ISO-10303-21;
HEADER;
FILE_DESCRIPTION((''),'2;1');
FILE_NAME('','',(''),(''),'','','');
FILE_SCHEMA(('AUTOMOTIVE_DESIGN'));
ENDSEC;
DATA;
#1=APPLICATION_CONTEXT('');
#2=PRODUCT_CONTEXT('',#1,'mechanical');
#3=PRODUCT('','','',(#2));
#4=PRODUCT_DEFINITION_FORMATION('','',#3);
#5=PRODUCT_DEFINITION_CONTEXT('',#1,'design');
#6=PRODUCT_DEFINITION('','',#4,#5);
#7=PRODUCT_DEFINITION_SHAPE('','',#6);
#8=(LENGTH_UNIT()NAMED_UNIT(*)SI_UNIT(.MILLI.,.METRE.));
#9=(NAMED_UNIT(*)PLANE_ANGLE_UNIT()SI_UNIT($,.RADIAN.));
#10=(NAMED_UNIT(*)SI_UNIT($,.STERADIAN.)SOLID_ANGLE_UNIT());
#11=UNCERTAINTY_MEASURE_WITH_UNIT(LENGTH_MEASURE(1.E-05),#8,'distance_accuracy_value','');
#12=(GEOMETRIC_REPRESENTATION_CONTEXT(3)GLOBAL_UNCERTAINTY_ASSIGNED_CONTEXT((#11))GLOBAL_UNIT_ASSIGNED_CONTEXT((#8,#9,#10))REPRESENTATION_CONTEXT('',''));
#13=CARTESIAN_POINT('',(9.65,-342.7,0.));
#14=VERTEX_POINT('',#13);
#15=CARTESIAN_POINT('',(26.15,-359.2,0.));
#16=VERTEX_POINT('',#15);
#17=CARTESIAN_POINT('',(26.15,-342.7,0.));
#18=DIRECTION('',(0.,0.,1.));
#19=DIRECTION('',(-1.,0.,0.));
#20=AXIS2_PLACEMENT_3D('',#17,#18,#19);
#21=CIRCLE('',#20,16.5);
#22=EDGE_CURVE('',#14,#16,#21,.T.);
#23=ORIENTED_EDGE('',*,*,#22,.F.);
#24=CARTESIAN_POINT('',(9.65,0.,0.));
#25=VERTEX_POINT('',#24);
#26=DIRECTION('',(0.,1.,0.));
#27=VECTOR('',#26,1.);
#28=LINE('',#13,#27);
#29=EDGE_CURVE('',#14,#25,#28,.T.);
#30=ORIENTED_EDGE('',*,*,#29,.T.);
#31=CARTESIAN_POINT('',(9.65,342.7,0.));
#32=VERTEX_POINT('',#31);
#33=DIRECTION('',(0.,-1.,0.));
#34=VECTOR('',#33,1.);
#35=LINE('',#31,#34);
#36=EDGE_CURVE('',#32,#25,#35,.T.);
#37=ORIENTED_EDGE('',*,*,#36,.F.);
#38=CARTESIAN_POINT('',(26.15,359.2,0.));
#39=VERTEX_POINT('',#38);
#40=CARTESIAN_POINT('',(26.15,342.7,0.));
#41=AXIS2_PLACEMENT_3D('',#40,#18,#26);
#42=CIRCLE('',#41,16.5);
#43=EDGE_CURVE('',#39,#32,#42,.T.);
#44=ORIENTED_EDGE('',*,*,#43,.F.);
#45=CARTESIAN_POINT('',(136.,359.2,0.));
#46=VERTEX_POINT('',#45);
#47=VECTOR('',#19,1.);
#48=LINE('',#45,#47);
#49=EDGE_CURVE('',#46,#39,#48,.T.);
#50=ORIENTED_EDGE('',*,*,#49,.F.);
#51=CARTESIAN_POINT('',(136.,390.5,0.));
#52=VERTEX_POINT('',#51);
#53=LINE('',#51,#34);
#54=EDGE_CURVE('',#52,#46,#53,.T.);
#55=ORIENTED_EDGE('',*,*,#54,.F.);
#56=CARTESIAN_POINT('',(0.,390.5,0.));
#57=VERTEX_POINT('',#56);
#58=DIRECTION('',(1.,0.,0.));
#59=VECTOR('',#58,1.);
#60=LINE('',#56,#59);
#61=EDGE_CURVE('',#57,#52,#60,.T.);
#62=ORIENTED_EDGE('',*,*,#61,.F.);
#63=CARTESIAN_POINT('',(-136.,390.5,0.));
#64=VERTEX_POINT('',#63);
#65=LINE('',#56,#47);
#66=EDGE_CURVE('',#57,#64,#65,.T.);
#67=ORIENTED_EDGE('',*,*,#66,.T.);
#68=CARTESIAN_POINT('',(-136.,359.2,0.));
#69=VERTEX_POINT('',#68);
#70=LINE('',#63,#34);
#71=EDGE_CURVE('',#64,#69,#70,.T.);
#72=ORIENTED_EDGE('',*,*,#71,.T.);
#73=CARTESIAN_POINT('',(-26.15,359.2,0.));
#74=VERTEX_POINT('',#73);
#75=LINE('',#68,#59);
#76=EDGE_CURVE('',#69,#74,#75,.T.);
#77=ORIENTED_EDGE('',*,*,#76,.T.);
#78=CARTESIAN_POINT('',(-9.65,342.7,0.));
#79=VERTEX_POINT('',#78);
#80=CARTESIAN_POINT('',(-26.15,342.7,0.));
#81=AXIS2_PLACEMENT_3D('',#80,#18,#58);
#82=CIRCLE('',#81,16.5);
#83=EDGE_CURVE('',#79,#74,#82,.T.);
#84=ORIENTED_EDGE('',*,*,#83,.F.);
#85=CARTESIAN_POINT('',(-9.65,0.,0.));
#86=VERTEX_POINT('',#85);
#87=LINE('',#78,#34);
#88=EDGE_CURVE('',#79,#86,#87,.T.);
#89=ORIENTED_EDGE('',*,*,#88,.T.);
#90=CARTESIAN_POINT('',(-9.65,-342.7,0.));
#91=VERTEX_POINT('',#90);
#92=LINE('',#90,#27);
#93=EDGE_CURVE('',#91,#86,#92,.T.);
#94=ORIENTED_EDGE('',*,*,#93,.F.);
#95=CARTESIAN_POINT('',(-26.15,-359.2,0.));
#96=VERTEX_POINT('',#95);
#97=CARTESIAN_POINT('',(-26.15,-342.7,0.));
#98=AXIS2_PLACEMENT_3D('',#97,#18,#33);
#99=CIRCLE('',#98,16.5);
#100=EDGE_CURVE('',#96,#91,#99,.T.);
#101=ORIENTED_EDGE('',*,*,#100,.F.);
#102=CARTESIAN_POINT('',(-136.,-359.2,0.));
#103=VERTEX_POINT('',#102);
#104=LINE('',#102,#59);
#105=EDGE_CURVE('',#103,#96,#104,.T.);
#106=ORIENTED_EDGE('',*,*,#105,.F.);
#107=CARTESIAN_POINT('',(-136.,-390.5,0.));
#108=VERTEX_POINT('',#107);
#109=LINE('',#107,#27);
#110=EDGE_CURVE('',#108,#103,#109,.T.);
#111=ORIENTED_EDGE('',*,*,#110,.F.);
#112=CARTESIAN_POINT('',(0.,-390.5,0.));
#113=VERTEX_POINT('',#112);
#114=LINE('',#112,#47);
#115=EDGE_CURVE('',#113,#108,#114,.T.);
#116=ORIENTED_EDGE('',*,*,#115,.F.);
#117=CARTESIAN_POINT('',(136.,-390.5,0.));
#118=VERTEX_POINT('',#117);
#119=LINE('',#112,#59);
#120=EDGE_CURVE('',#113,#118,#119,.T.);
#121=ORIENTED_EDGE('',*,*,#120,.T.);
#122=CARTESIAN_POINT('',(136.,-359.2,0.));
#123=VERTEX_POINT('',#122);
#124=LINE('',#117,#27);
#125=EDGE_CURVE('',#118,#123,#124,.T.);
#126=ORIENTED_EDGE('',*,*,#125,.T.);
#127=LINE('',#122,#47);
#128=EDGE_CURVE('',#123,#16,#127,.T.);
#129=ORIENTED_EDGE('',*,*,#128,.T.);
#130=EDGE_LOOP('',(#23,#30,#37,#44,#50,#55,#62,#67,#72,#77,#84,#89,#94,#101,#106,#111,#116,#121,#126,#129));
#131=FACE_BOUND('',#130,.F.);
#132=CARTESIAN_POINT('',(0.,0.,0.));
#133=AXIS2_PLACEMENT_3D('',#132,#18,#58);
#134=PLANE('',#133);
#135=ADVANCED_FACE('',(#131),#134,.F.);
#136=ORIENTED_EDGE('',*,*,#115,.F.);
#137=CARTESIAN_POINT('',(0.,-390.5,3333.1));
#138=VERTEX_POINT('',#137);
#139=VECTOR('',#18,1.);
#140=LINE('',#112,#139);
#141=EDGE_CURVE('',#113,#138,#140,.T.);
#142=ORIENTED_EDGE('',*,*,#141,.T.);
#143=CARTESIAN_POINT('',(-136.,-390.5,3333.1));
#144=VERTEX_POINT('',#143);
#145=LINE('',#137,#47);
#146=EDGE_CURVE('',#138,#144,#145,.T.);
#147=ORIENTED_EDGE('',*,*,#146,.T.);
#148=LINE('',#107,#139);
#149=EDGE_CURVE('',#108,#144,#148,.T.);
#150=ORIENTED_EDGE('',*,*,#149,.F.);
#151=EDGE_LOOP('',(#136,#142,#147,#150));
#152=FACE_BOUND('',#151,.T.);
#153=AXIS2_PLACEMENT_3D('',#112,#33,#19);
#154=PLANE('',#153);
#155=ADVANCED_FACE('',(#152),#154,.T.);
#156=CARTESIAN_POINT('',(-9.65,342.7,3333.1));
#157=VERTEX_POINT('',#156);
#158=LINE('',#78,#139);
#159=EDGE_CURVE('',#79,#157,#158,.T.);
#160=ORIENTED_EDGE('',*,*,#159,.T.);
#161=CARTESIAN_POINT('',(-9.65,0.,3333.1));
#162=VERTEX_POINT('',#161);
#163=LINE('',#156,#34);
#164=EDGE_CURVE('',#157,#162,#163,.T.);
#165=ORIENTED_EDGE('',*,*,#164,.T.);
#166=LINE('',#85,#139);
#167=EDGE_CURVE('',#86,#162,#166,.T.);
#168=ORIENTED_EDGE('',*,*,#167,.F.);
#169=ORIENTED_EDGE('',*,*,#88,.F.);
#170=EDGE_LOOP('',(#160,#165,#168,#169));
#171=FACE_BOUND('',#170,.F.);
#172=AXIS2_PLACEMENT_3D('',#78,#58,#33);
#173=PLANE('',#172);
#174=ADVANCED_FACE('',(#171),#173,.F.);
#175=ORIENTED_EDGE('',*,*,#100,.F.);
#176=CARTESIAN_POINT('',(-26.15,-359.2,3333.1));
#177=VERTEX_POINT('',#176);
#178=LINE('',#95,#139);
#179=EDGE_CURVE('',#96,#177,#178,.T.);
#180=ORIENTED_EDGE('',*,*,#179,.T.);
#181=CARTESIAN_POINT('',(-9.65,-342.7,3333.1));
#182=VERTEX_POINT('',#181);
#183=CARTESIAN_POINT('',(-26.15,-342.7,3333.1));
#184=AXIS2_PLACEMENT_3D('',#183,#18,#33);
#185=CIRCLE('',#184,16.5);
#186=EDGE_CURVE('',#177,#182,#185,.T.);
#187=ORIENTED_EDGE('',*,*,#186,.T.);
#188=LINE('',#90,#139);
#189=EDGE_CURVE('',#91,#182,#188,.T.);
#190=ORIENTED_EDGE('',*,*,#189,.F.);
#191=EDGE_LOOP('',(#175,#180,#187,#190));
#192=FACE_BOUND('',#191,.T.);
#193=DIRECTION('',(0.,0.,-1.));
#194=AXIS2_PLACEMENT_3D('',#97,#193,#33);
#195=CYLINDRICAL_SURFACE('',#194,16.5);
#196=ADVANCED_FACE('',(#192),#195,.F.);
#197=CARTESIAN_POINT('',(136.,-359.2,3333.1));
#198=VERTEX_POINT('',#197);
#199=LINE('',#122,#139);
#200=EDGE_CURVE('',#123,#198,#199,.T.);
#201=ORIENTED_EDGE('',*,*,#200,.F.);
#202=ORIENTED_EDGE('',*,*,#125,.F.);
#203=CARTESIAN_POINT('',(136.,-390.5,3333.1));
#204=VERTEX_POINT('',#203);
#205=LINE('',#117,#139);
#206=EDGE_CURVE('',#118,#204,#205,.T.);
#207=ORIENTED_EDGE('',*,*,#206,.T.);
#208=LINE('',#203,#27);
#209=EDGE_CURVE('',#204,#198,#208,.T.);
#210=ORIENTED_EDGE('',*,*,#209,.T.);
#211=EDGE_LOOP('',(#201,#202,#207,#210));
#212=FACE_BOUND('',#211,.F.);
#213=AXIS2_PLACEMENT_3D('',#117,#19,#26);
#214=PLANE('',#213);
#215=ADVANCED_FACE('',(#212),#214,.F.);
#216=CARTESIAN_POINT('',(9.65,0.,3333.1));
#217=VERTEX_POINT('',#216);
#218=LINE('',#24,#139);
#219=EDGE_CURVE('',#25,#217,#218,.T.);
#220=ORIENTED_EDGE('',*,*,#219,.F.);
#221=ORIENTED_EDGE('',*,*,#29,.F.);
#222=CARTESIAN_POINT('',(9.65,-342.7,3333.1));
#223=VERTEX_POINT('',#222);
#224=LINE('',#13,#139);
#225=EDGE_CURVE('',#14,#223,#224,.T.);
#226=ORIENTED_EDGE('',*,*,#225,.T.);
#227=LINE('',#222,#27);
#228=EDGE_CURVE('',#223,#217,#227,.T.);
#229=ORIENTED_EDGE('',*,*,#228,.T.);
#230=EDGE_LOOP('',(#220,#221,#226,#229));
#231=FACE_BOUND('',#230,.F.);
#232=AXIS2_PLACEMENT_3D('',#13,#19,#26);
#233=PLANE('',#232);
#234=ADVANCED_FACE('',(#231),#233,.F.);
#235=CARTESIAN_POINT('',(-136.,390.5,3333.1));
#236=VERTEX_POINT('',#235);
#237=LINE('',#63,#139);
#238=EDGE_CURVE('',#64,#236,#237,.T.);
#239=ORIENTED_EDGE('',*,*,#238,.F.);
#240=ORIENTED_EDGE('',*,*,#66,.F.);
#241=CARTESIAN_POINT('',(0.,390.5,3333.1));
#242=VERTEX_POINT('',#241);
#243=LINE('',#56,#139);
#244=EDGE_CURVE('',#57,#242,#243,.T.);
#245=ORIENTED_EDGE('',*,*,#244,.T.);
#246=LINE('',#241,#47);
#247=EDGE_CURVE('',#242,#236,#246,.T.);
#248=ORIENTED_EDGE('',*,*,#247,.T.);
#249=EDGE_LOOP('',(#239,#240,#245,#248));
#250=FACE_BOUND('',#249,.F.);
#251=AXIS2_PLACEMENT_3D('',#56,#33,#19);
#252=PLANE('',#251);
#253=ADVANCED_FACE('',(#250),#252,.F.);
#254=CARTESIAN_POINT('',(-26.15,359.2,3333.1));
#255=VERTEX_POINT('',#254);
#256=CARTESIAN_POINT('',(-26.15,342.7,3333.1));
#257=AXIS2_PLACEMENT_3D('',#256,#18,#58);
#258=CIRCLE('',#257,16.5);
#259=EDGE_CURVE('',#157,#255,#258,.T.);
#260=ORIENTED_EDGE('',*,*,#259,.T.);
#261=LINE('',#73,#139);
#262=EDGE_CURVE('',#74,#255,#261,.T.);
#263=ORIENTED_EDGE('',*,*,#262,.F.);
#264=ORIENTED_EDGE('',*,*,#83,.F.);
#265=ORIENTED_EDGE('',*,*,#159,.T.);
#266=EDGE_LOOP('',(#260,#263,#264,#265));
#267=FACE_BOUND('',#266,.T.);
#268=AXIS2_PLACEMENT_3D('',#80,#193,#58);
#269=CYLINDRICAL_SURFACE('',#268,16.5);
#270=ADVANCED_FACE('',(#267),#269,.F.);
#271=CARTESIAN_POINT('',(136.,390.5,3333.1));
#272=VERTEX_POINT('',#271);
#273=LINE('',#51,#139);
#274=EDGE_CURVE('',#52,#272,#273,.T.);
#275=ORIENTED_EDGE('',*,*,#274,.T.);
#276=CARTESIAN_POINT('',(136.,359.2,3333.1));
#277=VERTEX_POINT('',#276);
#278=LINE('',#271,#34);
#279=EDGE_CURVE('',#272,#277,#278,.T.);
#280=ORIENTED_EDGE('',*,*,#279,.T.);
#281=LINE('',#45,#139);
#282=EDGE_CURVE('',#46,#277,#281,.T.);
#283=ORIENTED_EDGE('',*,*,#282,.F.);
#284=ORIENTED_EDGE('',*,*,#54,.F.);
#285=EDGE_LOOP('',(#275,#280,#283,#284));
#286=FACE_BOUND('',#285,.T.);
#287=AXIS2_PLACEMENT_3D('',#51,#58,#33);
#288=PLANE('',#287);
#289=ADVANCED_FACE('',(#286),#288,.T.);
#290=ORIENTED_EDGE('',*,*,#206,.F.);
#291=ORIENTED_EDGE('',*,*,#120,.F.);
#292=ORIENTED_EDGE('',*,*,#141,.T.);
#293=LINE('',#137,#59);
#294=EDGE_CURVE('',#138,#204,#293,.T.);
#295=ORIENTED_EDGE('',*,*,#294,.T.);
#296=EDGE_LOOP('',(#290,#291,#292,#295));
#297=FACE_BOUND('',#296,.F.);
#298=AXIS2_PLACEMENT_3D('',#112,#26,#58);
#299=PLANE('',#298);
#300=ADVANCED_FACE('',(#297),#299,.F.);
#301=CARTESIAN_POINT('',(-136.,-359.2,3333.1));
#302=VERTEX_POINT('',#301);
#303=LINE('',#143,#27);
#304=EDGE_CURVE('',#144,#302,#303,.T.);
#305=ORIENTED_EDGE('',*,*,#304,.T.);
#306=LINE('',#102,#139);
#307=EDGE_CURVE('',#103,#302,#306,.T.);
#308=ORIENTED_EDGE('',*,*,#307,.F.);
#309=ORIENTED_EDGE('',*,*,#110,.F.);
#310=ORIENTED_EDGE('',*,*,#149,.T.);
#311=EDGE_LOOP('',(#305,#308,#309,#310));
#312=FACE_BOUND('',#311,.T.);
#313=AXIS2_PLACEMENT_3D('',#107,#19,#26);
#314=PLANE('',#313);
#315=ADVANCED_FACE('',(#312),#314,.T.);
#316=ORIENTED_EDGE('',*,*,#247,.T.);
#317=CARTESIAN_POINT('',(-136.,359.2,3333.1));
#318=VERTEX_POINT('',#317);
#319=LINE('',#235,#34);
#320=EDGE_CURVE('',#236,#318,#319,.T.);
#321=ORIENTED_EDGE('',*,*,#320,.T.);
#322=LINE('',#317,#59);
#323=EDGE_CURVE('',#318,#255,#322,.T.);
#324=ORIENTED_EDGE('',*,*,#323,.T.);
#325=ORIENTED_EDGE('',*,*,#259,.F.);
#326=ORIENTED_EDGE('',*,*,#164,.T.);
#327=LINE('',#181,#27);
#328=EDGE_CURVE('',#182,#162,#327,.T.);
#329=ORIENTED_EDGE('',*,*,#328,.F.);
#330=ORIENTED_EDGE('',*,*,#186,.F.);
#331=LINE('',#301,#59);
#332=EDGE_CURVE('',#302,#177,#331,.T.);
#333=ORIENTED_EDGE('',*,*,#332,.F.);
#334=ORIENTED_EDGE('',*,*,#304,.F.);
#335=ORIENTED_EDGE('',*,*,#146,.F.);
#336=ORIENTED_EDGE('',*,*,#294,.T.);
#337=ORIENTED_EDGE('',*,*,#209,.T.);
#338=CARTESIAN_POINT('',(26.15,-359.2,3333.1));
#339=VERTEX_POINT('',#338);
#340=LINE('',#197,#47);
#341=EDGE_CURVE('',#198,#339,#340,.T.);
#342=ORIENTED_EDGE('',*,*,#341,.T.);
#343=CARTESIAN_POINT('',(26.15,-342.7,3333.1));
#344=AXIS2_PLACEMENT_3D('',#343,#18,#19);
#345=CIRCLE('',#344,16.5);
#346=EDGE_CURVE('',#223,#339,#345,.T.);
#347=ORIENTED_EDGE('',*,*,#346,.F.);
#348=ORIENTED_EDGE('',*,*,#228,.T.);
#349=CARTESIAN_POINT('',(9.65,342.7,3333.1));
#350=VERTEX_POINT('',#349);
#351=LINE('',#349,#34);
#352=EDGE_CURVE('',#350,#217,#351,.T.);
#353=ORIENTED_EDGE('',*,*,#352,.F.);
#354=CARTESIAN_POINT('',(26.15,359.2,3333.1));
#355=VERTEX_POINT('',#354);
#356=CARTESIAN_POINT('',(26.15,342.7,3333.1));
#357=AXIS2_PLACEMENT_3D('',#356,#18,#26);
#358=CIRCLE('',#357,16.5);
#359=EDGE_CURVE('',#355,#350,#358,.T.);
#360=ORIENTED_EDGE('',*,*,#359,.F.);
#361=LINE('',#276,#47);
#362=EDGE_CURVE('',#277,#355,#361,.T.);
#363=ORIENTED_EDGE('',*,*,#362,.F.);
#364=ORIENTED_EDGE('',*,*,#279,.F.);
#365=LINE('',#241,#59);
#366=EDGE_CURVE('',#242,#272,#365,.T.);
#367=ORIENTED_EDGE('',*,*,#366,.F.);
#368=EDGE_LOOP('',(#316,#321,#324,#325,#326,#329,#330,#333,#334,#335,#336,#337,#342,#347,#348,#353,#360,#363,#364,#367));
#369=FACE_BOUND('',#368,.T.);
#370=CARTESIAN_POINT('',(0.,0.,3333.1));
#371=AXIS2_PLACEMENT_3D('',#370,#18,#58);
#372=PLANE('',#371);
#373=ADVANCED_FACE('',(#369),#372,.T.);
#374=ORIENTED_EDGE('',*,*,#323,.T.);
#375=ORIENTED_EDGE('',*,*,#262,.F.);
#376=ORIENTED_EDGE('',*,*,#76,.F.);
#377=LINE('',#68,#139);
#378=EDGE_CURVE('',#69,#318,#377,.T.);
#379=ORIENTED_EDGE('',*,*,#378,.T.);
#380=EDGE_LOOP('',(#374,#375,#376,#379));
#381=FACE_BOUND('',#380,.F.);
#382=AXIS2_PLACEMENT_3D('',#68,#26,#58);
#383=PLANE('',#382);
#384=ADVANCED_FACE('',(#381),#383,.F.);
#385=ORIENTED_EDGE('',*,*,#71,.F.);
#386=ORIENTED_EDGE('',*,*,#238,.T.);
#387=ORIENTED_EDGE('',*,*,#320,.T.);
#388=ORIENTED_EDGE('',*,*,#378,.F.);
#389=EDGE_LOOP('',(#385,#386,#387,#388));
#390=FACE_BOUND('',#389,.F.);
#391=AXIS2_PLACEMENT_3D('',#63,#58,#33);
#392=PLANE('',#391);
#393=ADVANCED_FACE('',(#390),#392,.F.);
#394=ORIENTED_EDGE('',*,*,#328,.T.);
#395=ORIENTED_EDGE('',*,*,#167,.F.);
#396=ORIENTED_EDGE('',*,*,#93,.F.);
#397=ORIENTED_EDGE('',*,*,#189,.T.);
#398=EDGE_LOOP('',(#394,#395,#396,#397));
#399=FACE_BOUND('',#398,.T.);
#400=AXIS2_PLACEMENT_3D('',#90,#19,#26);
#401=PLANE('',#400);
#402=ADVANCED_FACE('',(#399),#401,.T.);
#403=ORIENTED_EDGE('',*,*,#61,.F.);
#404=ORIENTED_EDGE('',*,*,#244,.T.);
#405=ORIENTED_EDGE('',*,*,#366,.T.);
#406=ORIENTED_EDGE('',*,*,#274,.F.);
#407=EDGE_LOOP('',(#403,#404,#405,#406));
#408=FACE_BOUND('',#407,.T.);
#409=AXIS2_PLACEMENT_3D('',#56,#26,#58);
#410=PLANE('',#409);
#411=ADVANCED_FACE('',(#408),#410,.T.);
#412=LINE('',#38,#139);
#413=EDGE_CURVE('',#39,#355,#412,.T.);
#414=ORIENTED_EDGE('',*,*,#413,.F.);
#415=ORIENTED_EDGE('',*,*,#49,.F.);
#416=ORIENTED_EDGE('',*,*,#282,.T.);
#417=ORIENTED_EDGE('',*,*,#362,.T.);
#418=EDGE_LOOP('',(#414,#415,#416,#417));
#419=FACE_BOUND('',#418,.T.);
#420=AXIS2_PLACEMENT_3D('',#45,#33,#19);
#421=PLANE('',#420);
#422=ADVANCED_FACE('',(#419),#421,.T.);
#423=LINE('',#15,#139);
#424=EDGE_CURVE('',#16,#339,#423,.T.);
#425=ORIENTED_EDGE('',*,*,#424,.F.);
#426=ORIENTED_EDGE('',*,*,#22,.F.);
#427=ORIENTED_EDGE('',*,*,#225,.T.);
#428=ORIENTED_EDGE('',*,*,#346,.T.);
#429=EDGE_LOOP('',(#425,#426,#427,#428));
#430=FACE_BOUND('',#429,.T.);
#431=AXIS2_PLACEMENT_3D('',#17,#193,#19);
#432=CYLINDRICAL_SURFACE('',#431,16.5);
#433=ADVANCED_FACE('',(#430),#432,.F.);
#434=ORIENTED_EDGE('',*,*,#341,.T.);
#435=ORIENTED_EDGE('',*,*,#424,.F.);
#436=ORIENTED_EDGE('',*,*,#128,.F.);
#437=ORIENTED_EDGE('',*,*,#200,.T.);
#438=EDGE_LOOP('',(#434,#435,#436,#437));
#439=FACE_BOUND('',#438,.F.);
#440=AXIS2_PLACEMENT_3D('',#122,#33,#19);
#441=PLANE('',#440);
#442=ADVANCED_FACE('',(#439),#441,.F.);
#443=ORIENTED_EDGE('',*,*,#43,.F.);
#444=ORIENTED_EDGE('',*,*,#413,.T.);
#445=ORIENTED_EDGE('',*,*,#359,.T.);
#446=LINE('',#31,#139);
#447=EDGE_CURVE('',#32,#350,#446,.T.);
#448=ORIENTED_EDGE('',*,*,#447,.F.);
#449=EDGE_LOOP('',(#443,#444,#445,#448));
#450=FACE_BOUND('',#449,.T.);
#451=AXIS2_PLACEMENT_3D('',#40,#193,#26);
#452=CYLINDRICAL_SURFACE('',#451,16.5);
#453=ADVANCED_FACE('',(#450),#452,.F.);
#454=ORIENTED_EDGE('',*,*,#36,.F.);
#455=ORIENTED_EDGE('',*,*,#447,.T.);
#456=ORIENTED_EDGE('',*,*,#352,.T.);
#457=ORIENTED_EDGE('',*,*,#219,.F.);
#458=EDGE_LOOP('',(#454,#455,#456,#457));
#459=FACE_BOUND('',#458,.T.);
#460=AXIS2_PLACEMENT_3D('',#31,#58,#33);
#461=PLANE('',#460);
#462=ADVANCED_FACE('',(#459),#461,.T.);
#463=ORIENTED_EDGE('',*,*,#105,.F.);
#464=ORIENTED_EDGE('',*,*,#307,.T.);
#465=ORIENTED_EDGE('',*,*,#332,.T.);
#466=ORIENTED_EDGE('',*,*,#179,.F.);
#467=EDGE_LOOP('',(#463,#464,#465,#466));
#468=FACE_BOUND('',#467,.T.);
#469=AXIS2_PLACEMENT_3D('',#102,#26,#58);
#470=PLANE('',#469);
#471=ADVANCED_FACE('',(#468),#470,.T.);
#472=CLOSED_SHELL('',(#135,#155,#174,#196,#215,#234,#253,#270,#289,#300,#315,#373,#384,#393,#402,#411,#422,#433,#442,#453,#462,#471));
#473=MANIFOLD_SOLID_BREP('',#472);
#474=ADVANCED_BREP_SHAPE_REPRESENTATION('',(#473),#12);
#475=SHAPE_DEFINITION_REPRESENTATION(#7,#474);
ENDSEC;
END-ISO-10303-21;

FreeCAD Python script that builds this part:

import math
import FreeCAD as App
import Part
import Sketcher
from FreeCAD import Vector

doc = App.newDocument("Part")
body = doc.addObject("PartDesign::Body", "Body")

sketch1 = body.newObject("Sketcher::SketchObject", "Sketch")
sketch1.AttachmentSupport = (doc.getObject("XY_Plane"), [""])
sketch1.MapMode = "FlatFace"
sketch1.addGeometry([
    Part.LineSegment(Vector(-136, -359, 0), Vector(-136, -390, 0)),
    Part.LineSegment(Vector(-136, -390, 0), Vector(136, -390, 0)),
    Part.LineSegment(Vector(136, -390, 0), Vector(136, -359, 0)),
    Part.LineSegment(Vector(136, -359, 0), Vector(26, -359, 0)),
    Part.ArcOfCircle(Part.Circle(Vector(26, -343, 0), Vector(0, 0, 1), 16), math.radians(180), math.radians(270)),
    Part.LineSegment(Vector(10, -343, 0), Vector(10, 343, 0)),
    Part.ArcOfCircle(Part.Circle(Vector(26, 343, 0), Vector(0, 0, 1), 16), math.radians(90), math.radians(180)),
    Part.LineSegment(Vector(26, 359, 0), Vector(136, 359, 0)),
    Part.LineSegment(Vector(136, 359, 0), Vector(136, 390, 0)),
    Part.LineSegment(Vector(136, 390, 0), Vector(-136, 390, 0)),
    Part.LineSegment(Vector(-136, 390, 0), Vector(-136, 359, 0)),
    Part.LineSegment(Vector(-136, 359, 0), Vector(-26, 359, 0)),
    Part.ArcOfCircle(Part.Circle(Vector(-26, 343, 0), Vector(0, 0, 1), 16), math.radians(0), math.radians(90)),
    Part.LineSegment(Vector(-10, 343, 0), Vector(-10, -343, 0)),
    Part.ArcOfCircle(Part.Circle(Vector(-26, -343, 0), Vector(0, 0, 1), 16), math.radians(-90), math.radians(0)),
    Part.LineSegment(Vector(-26, -359, 0), Vector(-136, -359, 0)),
], False)
sketch1.addConstraint([
    Sketcher.Constraint("Coincident", 0, 2, 1, 1),
    Sketcher.Constraint("Coincident", 1, 2, 2, 1),
    Sketcher.Constraint("Coincident", 2, 2, 3, 1),
    Sketcher.Constraint("Tangent", 3, 2, 4, 2),
    Sketcher.Constraint("Tangent", 4, 1, 5, 1),
    Sketcher.Constraint("Tangent", 5, 2, 6, 2),
    Sketcher.Constraint("Tangent", 6, 1, 7, 1),
    Sketcher.Constraint("Coincident", 7, 2, 8, 1),
    Sketcher.Constraint("Coincident", 8, 2, 9, 1),
    Sketcher.Constraint("Coincident", 9, 2, 10, 1),
    Sketcher.Constraint("Coincident", 10, 2, 11, 1),
    Sketcher.Constraint("Tangent", 11, 2, 12, 2),
    Sketcher.Constraint("Tangent", 12, 1, 13, 1),
    Sketcher.Constraint("Tangent", 13, 2, 14, 2),
    Sketcher.Constraint("Tangent", 14, 1, 15, 1),
    Sketcher.Constraint("Coincident", 15, 2, 0, 1),
    Sketcher.Constraint("Vertical", 0),
    Sketcher.Constraint("Horizontal", 1),
    Sketcher.Constraint("Vertical", 2),
    Sketcher.Constraint("Horizontal", 3),
    Sketcher.Constraint("Vertical", 5),
    Sketcher.Constraint("Horizontal", 7),
    Sketcher.Constraint("Vertical", 8),
    Sketcher.Constraint("Horizontal", 9),
    Sketcher.Constraint("Vertical", 10),
    Sketcher.Constraint("Horizontal", 11),
    Sketcher.Constraint("Vertical", 13),
    Sketcher.Constraint("Horizontal", 15),
    Sketcher.Constraint("Equal", 4, 6),
    Sketcher.Constraint("Equal", 6, 12),
    Sketcher.Constraint("Equal", 12, 14),
    Sketcher.Constraint("Symmetric", 4, 3, 12, 3, -1, 1),
    Sketcher.Constraint("Symmetric", 0, 2, 8, 2, -1, 1),
    Sketcher.Constraint("Symmetric", 7, 2, 10, 2, -2),
    Sketcher.Constraint("Symmetric", 2, 2, 15, 2, -2),
    Sketcher.Constraint("Radius", 4, 16.5),
    Sketcher.Constraint("DistanceY", 0, 2, 0, 1, 31.3),
    Sketcher.Constraint("DistanceX", 0, 2, -1, 1, 136.0),
    Sketcher.Constraint("DistanceY", 0, 2, -1, 1, 390.5),
    Sketcher.Constraint("DistanceX", -1, 1, 4, 1, 9.65),
])
pad1 = body.newObject("PartDesign::Pad", "Pad")
pad1.Profile = sketch1
pad1.Length = 3333.1

doc.recompute()
